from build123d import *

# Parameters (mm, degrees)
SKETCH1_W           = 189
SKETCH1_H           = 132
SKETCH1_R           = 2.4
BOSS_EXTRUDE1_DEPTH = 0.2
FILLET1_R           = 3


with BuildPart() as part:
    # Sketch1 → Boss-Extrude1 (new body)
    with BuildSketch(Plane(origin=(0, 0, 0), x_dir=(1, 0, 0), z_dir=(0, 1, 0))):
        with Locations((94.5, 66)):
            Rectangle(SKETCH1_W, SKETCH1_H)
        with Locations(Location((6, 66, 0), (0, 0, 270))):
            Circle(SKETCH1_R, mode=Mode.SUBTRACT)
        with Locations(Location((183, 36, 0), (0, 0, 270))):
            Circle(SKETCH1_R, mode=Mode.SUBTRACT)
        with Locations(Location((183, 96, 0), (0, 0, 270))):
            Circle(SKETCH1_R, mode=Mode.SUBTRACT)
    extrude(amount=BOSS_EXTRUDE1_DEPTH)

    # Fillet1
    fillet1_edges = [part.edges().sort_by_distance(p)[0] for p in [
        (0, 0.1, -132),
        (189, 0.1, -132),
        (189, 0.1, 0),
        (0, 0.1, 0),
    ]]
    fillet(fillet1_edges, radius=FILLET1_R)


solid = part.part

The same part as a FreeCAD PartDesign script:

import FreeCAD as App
import Part
import Sketcher

V = App.Vector
Q = App.Units.Quantity


def edges_at(feature, points):
    """Names of the edges that pass closest to the given points."""
    edges = feature.Shape.Edges
    near = lambda p: min(range(len(edges)), key=lambda i: edges[i].distToShape(Part.Vertex(*p))[0])
    return sorted({f"Edge{near(p) + 1}" for p in points})

doc = App.newDocument("Part")
body = doc.addObject("PartDesign::Body", "Body")

# Sketch on XZ plane
sketch1 = body.newObject("Sketcher::SketchObject", "Sketch")
sketch1.AttachmentSupport = (doc.getObject("XZ_Plane"), [""])
sketch1.MapMode = "FlatFace"
sketch1.addGeometry(Part.LineSegment(V(0, -132, 0), V(0, 0, 0)), False)
sketch1.addGeometry(Part.LineSegment(V(0, 0, 0), V(189, 0, 0)), False)
sketch1.addGeometry(Part.LineSegment(V(189, 0, 0), V(189, -132, 0)), False)
sketch1.addGeometry(Part.LineSegment(V(189, -132, 0), V(0, -132, 0)), False)
sketch1.addGeometry(Part.Circle(V(183, -36, 0), V(0, 0, 1), 2.4), False)
sketch1.addGeometry(Part.Circle(V(6, -66, 0), V(0, 0, 1), 2.4), False)
sketch1.addGeometry(Part.Circle(V(183, -96, 0), V(0, 0, 1), 2.4), False)
sketch1.addConstraint(Sketcher.Constraint("Coincident", 0, 2, 1, 1))
sketch1.addConstraint(Sketcher.Constraint("Coincident", 1, 2, 2, 1))
sketch1.addConstraint(Sketcher.Constraint("Coincident", 2, 2, 3, 1))
sketch1.addConstraint(Sketcher.Constraint("Coincident", 3, 2, 0, 1))
sketch1.addConstraint(Sketcher.Constraint("Vertical", 0))
sketch1.addConstraint(Sketcher.Constraint("Horizontal", 1))
sketch1.addConstraint(Sketcher.Constraint("Vertical", 2))
sketch1.addConstraint(Sketcher.Constraint("Horizontal", 3))
sketch1.addConstraint(Sketcher.Constraint("Coincident", 0, 2, -1, 1))
sketch1.addConstraint(Sketcher.Constraint("Equal", 4, 5))
sketch1.addConstraint(Sketcher.Constraint("Equal", 5, 6))
sketch1.addConstraint(Sketcher.Constraint("Vertical", 4, 3, 6, 3))
sketch1.addConstraint(Sketcher.Constraint("Diameter", 4, Q("4.8 mm")))
sketch1.addConstraint(Sketcher.Constraint("DistanceX", 1, 1, 1, 2, Q("189 mm")))
sketch1.addConstraint(Sketcher.Constraint("DistanceY", 0, 1, 0, 2, Q("132 mm")))
sketch1.addConstraint(Sketcher.Constraint("DistanceX", -1, 1, 4, 3, Q("183 mm")))
sketch1.addConstraint(Sketcher.Constraint("DistanceY", 4, 3, -1, 1, Q("36 mm")))
sketch1.addConstraint(Sketcher.Constraint("DistanceX", -1, 1, 5, 3, Q("6 mm")))
sketch1.addConstraint(Sketcher.Constraint("DistanceY", 5, 3, -1, 1, Q("66 mm")))
sketch1.addConstraint(Sketcher.Constraint("DistanceY", 6, 3, -1, 1, Q("96 mm")))
pad1 = body.newObject("PartDesign::Pad", "Pad")
pad1.Profile = sketch1
pad1.Length = 0.2
pad1.Reversed = True
doc.recompute()

fillet = body.newObject("PartDesign::Fillet", "Fillet")
fillet.Base = (pad1, edges_at(pad1, [
    (0, 0.1, -132),
    (189, 0.1, -132),
    (189, 0.1, 0),
    (0, 0.1, 0),
]))
fillet.Radius = 3

doc.recompute()
